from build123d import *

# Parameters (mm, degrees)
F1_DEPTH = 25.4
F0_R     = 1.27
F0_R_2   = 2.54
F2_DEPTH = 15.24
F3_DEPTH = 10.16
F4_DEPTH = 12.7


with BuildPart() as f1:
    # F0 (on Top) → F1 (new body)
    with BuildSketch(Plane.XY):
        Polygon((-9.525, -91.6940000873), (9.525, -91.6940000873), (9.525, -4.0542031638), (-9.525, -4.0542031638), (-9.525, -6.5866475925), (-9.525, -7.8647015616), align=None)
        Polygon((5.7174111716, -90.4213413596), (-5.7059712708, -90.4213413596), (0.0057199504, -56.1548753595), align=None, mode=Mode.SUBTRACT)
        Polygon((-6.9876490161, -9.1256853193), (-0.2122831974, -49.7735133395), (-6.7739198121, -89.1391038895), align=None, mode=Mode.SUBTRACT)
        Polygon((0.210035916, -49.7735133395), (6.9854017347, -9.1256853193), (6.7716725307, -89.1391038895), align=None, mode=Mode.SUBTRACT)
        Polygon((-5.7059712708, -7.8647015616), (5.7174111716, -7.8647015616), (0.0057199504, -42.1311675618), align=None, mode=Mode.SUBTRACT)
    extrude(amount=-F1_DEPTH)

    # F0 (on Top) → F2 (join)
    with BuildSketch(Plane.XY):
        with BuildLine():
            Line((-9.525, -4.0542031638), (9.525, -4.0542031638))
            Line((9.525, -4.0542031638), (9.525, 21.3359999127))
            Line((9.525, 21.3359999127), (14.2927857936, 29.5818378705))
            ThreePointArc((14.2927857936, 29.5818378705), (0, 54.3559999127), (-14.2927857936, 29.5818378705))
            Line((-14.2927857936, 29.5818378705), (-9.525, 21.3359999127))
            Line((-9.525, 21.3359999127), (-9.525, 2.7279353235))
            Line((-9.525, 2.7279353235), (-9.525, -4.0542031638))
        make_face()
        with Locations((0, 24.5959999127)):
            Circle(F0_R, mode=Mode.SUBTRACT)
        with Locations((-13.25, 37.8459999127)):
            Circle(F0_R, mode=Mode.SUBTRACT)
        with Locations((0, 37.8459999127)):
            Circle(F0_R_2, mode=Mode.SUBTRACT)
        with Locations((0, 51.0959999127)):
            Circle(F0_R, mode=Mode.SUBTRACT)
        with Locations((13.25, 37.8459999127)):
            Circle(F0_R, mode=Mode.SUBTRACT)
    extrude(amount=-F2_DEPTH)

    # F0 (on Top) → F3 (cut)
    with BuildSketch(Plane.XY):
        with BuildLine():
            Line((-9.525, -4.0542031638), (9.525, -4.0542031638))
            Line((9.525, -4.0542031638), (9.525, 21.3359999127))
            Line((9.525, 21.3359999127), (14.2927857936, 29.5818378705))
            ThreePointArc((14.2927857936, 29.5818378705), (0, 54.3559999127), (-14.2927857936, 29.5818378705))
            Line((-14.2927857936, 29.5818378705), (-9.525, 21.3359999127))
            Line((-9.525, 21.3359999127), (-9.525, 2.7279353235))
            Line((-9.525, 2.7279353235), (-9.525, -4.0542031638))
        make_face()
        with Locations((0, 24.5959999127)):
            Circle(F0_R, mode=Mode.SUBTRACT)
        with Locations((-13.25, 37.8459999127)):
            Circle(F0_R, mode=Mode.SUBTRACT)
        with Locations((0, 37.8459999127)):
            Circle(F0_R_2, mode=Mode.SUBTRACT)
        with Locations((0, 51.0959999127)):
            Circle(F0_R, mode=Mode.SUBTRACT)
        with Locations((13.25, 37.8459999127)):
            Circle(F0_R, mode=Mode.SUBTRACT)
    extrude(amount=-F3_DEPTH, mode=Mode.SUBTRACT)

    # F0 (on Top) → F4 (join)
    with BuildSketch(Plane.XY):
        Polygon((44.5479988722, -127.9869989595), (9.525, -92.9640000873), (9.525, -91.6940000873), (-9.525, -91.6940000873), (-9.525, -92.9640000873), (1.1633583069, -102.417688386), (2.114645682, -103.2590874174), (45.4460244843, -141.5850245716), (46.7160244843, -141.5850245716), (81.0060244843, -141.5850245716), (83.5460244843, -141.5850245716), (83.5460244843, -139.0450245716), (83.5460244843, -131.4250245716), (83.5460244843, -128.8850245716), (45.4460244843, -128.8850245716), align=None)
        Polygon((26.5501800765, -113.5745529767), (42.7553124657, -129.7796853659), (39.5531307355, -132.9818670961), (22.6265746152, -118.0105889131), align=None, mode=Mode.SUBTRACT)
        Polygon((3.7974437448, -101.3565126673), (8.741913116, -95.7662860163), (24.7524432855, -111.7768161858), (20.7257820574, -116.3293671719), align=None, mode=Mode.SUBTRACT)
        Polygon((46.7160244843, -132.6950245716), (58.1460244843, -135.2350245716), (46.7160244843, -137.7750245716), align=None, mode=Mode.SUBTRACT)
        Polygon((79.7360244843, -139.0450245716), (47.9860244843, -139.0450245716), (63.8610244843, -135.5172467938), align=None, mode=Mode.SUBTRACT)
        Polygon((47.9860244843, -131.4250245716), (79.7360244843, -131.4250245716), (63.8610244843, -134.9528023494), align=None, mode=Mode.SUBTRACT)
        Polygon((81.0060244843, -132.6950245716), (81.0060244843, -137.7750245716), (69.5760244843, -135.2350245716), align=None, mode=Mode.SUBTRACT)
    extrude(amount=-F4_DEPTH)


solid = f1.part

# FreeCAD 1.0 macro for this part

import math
import FreeCAD as App
import Part
import Sketcher

V = App.Vector
Q = App.Units.Quantity

doc = App.newDocument("Part")
body = doc.addObject("PartDesign::Body", "Body")

# Sketch on XY plane
sketch1 = body.newObject("Sketcher::SketchObject", "Sketch")
sketch1.AttachmentSupport = (doc.getObject("XY_Plane"), [""])
sketch1.MapMode = "FlatFace"
sketch1.addGeometry(Part.LineSegment(V(-9.525, -91.694, 0), V(9.525, -91.694, 0)), False)
sketch1.addGeometry(Part.LineSegment(V(9.525, -91.694, 0), V(9.525, -4.054203, 0)), False)
sketch1.addGeometry(Part.LineSegment(V(9.525, -4.054203, 0), V(-9.525, -4.054203, 0)), False)
sketch1.addGeometry(Part.LineSegment(V(-9.525, -4.054203, 0), V(-9.525, -91.694, 0)), False)
sketch1.addGeometry(Part.LineSegment(V(0.00572, -56.154875, 0), V(5.717411, -90.421341, 0)), False)
sketch1.addGeometry(Part.LineSegment(V(5.717411, -90.421341, 0), V(-5.705971, -90.421341, 0)), False)
sketch1.addGeometry(Part.LineSegment(V(-5.705971, -90.421341, 0), V(0.00572, -56.154875, 0)), False)
sketch1.addGeometry(Part.LineSegment(V(-6.77392, -89.139104, 0), V(-6.987649, -9.125685, 0)), False)
sketch1.addGeometry(Part.LineSegment(V(-6.987649, -9.125685, 0), V(-0.212283, -49.773513, 0)), False)
sketch1.addGeometry(Part.LineSegment(V(-0.212283, -49.773513, 0), V(-6.77392, -89.139104, 0)), False)
sketch1.addGeometry(Part.LineSegment(V(6.771673, -89.139104, 0), V(0.210036, -49.773513, 0)), False)
sketch1.addGeometry(Part.LineSegment(V(0.210036, -49.773513, 0), V(6.985402, -9.125685, 0)), False)
sketch1.addGeometry(Part.LineSegment(V(6.985402, -9.125685, 0), V(6.771673, -89.139104, 0)), False)
sketch1.addGeometry(Part.LineSegment(V(0.00572, -42.131168, 0), V(-5.705971, -7.864702, 0)), False)
sketch1.addGeometry(Part.LineSegment(V(-5.705971, -7.864702, 0), V(5.717411, -7.864702, 0)), False)
sketch1.addGeometry(Part.LineSegment(V(5.717411, -7.864702, 0), V(0.00572, -42.131168, 0)), False)
sketch1.addConstraint(Sketcher.Constraint("Coincident", 0, 2, 1, 1))
sketch1.addConstraint(Sketcher.Constraint("Coincident", 1, 2, 2, 1))
sketch1.addConstraint(Sketcher.Constraint("Coincident", 2, 2, 3, 1))
sketch1.addConstraint(Sketcher.Constraint("Coincident", 3, 2, 0, 1))
sketch1.addConstraint(Sketcher.Constraint("Coincident", 4, 2, 5, 1))
sketch1.addConstraint(Sketcher.Constraint("Coincident", 5, 2, 6, 1))
sketch1.addConstraint(Sketcher.Constraint("Coincident", 6, 2, 4, 1))
sketch1.addConstraint(Sketcher.Constraint("Coincident", 7, 2, 8, 1))
sketch1.addConstraint(Sketcher.Constraint("Coincident", 8, 2, 9, 1))
sketch1.addConstraint(Sketcher.Constraint("Coincident", 9, 2, 7, 1))
sketch1.addConstraint(Sketcher.Constraint("Coincident", 10, 2, 11, 1))
sketch1.addConstraint(Sketcher.Constraint("Coincident", 11, 2, 12, 1))
sketch1.addConstraint(Sketcher.Constraint("Coincident", 12, 2, 10, 1))
sketch1.addConstraint(Sketcher.Constraint("Coincident", 13, 2, 14, 1))
sketch1.addConstraint(Sketcher.Constraint("Coincident", 14, 2, 15, 1))
sketch1.addConstraint(Sketcher.Constraint("Coincident", 15, 2, 13, 1))
sketch1.addConstraint(Sketcher.Constraint("Horizontal", 0))
sketch1.addConstraint(Sketcher.Constraint("Vertical", 1))
sketch1.addConstraint(Sketcher.Constraint("Horizontal", 2))
sketch1.addConstraint(Sketcher.Constraint("Vertical", 3))
sketch1.addConstraint(Sketcher.Constraint("Horizontal", 5))
sketch1.addConstraint(Sketcher.Constraint("Horizontal", 14))
sketch1.addConstraint(Sketcher.Constraint("Parallel", 4, 8))
sketch1.addConstraint(Sketcher.Constraint("Parallel", 6, 9))
sketch1.addConstraint(Sketcher.Constraint("Parallel", 8, 10))
sketch1.addConstraint(Sketcher.Constraint("Parallel", 9, 11))
sketch1.addConstraint(Sketcher.Constraint("Parallel", 10, 13))
sketch1.addConstraint(Sketcher.Constraint("Parallel", 11, 15))
sketch1.addConstraint(Sketcher.Constraint("Horizontal", 8, 2, 10, 2))
sketch1.addConstraint(Sketcher.Constraint("Horizontal", 7, 2, 11, 2))
sketch1.addConstraint(Sketcher.Constraint("Horizontal", 9, 2, 12, 2))
sketch1.addConstraint(Sketcher.Constraint("Vertical", 5, 2, 13, 2))
sketch1.addConstraint(Sketcher.Constraint("Vertical", 4, 2, 14, 2))
sketch1.addConstraint(Sketcher.Constraint("Vertical", 6, 2, 15, 2))
sketch1.addConstraint(Sketcher.Constraint("DistanceX", 0, 1, 0, 2, Q("0.75 in")))
sketch1.addConstraint(Sketcher.Constraint("DistanceY", 0, 2, -1, 1, Q("3.61 in")))
sketch1.addConstraint(Sketcher.Constraint("DistanceX", -1, 1, 0, 2, Q("0.375 in")))
sketch1.addConstraint(Sketcher.Constraint("DistanceX", -1, 1, 11, 2, 6.985402))
sketch1.addConstraint(Sketcher.Constraint("DistanceY", 13, 2, -1, 1, 7.864702))
sketch1.addConstraint(Sketcher.Constraint("DistanceY", 13, 2, 2, 2, 3.810498))
sketch1.addConstraint(Sketcher.Constraint("Distance", 4, 34.73923))
sketch1.addConstraint(Sketcher.Constraint("DistanceX", 5, 2, 5, 1, 11.423382))
sketch1.addConstraint(Sketcher.Constraint("DistanceX", -1, 1, 4, 2, 5.717411))
sketch1.addConstraint(Sketcher.Constraint("DistanceY", 4, 2, -1, 1, 90.421341))
sketch1.addConstraint(Sketcher.Constraint("DistanceX", 7, 2, -1, 1, 6.987649))
sketch1.addConstraint(Sketcher.Constraint("DistanceX", 9, 2, -1, 1, 6.77392))
sketch1.addConstraint(Sketcher.Constraint("DistanceY", 6, 2, 7, 2, 47.02919))
sketch1.addConstraint(Sketcher.Constraint("DistanceX", 5, 2, 8, 2, 5.493688))
pad1 = body.newObject("PartDesign::Pad", "Pad")
pad1.Profile = sketch1
pad1.Length = Q("1 in")
pad1.Reversed = True

# Sketch on XY plane
sketch2 = body.newObject("Sketcher::SketchObject", "Sketch001")
sketch2.AttachmentSupport = (doc.getObject("XY_Plane"), [""])
sketch2.MapMode = "FlatFace"
sketch2.addGeometry(Part.LineSegment(V(-9.525, -4.054203, 0), V(9.525, -4.054203, 0)), False)
sketch2.addGeometry(Part.LineSegment(V(9.525, -4.054203, 0), V(9.525, 21.336, 0)), False)
sketch2.addGeometry(Part.LineSegment(V(9.525, 21.336, 0), V(14.292786, 29.581838, 0)), False)
sketch2.addGeometry(Part.ArcOfCircle(Part.Circle(V(0, 37.846, 0), V(0, 0, 1), 16.51), math.radians(-30.036721), math.radians(210.036721)), False)
sketch2.addGeometry(Part.LineSegment(V(-14.292786, 29.581838, 0), V(-9.525, 21.336, 0)), False)
sketch2.addGeometry(Part.LineSegment(V(-9.525, 21.336, 0), V(-9.525, -4.054203, 0)), False)
sketch2.addGeometry(Part.Circle(V(0, 24.596, 0), V(0, 0, 1), 1.27), False)
sketch2.addGeometry(Part.Circle(V(-13.25, 37.846, 0), V(0, 0, 1), 1.27), False)
sketch2.addGeometry(Part.Circle(V(0, 37.846, 0), V(0, 0, 1), 2.54), False)
sketch2.addGeometry(Part.Circle(V(13.25, 37.846, 0), V(0, 0, 1), 1.27), False)
sketch2.addGeometry(Part.Circle(V(0, 51.096, 0), V(0, 0, 1), 1.27), False)
sketch2.addConstraint(Sketcher.Constraint("Coincident", 0, 2, 1, 1))
sketch2.addConstraint(Sketcher.Constraint("Coincident", 1, 2, 2, 1))
sketch2.addConstraint(Sketcher.Constraint("Tangent", 2, 2, 3, 1))
sketch2.addConstraint(Sketcher.Constraint("Tangent", 3, 2, 4, 1))
sketch2.addConstraint(Sketcher.Constraint("Coincident", 4, 2, 5, 1))
sketch2.addConstraint(Sketcher.Constraint("Coincident", 5, 2, 0, 1))
sketch2.addConstraint(Sketcher.Constraint("Horizontal", 0))
sketch2.addConstraint(Sketcher.Constraint("Vertical", 1))
sketch2.addConstraint(Sketcher.Constraint("Vertical", 5))
sketch2.addConstraint(Sketcher.Constraint("Coincident", 8, 3, 3, 3))
sketch2.addConstraint(Sketcher.Constraint("Equal", 6, 7))
sketch2.addConstraint(Sketcher.Constraint("Equal", 7, 9))
sketch2.addConstraint(Sketcher.Constraint("Equal", 9, 10))
sketch2.addConstraint(Sketcher.Constraint("Symmetric", 7, 3, 9, 3, -2))
sketch2.addConstraint(Sketcher.Constraint("Symmetric", 2, 2, 3, 2, -2))
sketch2.addConstraint(Sketcher.Constraint("PointOnObject", 6, 3, -2))
sketch2.addConstraint(Sketcher.Constraint("PointOnObject", 10, 3, -2))
sketch2.addConstraint(Sketcher.Constraint("Horizontal", 3, 3, 7, 3))
sketch2.addConstraint(Sketcher.Constraint("Horizontal", 1, 2, 4, 2))
sketch2.addConstraint(Sketcher.Constraint("Diameter", 6, Q("0.1 in")))
sketch2.addConstraint(Sketcher.Constraint("Diameter", 8, Q("0.2 in")))
sketch2.addConstraint(Sketcher.Constraint("Radius", 3, Q("0.65 in")))
sketch2.addConstraint(Sketcher.Constraint("DistanceX", 0, 1, 0, 2, Q("0.75 in")))
sketch2.addConstraint(Sketcher.Constraint("DistanceY", -1, 1, 3, 3, Q("1.49 in")))
sketch2.addConstraint(Sketcher.Constraint("DistanceY", -1, 1, 1, 2, Q("0.84 in")))
sketch2.addConstraint(Sketcher.Constraint("DistanceY", -1, 1, 6, 3, 24.596))
sketch2.addConstraint(Sketcher.Constraint("DistanceX", 7, 3, -1, 1, 13.25))
sketch2.addConstraint(Sketcher.Constraint("DistanceY", -1, 1, 10, 3, 51.096))
sketch2.addConstraint(Sketcher.Constraint("DistanceY", 1, 1, 1, 2, 25.390203))
pad2 = body.newObject("PartDesign::Pad", "Pad001")
pad2.Profile = sketch2
pad2.Length = Q("0.6 in")
pad2.Reversed = True

# Sketch on XY plane
sketch3 = body.newObject("Sketcher::SketchObject", "Sketch002")
sketch3.AttachmentSupport = (doc.getObject("XY_Plane"), [""])
sketch3.MapMode = "FlatFace"
sketch3.addGeometry(Part.LineSegment(V(-9.525, -4.054203, 0), V(9.525, -4.054203, 0)), False)
sketch3.addGeometry(Part.LineSegment(V(9.525, -4.054203, 0), V(9.525, 21.336, 0)), False)
sketch3.addGeometry(Part.LineSegment(V(9.525, 21.336, 0), V(14.292786, 29.581838, 0)), False)
sketch3.addGeometry(Part.ArcOfCircle(Part.Circle(V(0, 37.846, 0), V(0, 0, 1), 16.51), math.radians(-30.036721), math.radians(210.036721)), False)
sketch3.addGeometry(Part.LineSegment(V(-14.292786, 29.581838, 0), V(-9.525, 21.336, 0)), False)
sketch3.addGeometry(Part.LineSegment(V(-9.525, 21.336, 0), V(-9.525, -4.054203, 0)), False)
sketch3.addGeometry(Part.Circle(V(0, 24.596, 0), V(0, 0, 1), 1.27), False)
sketch3.addGeometry(Part.Circle(V(-13.25, 37.846, 0), V(0, 0, 1), 1.27), False)
sketch3.addGeometry(Part.Circle(V(0, 37.846, 0), V(0, 0, 1), 2.54), False)
sketch3.addGeometry(Part.Circle(V(13.25, 37.846, 0), V(0, 0, 1), 1.27), False)
sketch3.addGeometry(Part.Circle(V(0, 51.096, 0), V(0, 0, 1), 1.27), False)
sketch3.addConstraint(Sketcher.Constraint("Coincident", 0, 2, 1, 1))
sketch3.addConstraint(Sketcher.Constraint("Coincident", 1, 2, 2, 1))
sketch3.addConstraint(Sketcher.Constraint("Tangent", 2, 2, 3, 1))
sketch3.addConstraint(Sketcher.Constraint("Tangent", 3, 2, 4, 1))
sketch3.addConstraint(Sketcher.Constraint("Coincident", 4, 2, 5, 1))
sketch3.addConstraint(Sketcher.Constraint("Coincident", 5, 2, 0, 1))
sketch3.addConstraint(Sketcher.Constraint("Horizontal", 0))
sketch3.addConstraint(Sketcher.Constraint("Vertical", 1))
sketch3.addConstraint(Sketcher.Constraint("Vertical", 5))
sketch3.addConstraint(Sketcher.Constraint("Coincident", 8, 3, 3, 3))
sketch3.addConstraint(Sketcher.Constraint("Equal", 6, 7))
sketch3.addConstraint(Sketcher.Constraint("Equal", 7, 9))
sketch3.addConstraint(Sketcher.Constraint("Equal", 9, 10))
sketch3.addConstraint(Sketcher.Constraint("Symmetric", 7, 3, 9, 3, -2))
sketch3.addConstraint(Sketcher.Constraint("Symmetric", 2, 2, 3, 2, -2))
sketch3.addConstraint(Sketcher.Constraint("PointOnObject", 6, 3, -2))
sketch3.addConstraint(Sketcher.Constraint("PointOnObject", 10, 3, -2))
sketch3.addConstraint(Sketcher.Constraint("Horizontal", 3, 3, 7, 3))
sketch3.addConstraint(Sketcher.Constraint("Horizontal", 1, 2, 4, 2))
sketch3.addConstraint(Sketcher.Constraint("Diameter", 6, Q("0.1 in")))
sketch3.addConstraint(Sketcher.Constraint("Diameter", 8, Q("0.2 in")))
sketch3.addConstraint(Sketcher.Constraint("Radius", 3, Q("0.65 in")))
sketch3.addConstraint(Sketcher.Constraint("DistanceX", 0, 1, 0, 2, Q("0.75 in")))
sketch3.addConstraint(Sketcher.Constraint("DistanceY", -1, 1, 3, 3, Q("1.49 in")))
sketch3.addConstraint(Sketcher.Constraint("DistanceY", -1, 1, 1, 2, Q("0.84 in")))
sketch3.addConstraint(Sketcher.Constraint("DistanceY", -1, 1, 6, 3, 24.596))
sketch3.addConstraint(Sketcher.Constraint("DistanceX", 7, 3, -1, 1, 13.25))
sketch3.addConstraint(Sketcher.Constraint("DistanceY", -1, 1, 10, 3, 51.096))
sketch3.addConstraint(Sketcher.Constraint("DistanceY", 1, 1, 1, 2, 25.390203))
pocket1 = body.newObject("PartDesign::Pocket", "Pocket")
pocket1.Profile = sketch3
pocket1.Length = Q("0.4 in")

# Sketch on XY plane
sketch4 = body.newObject("Sketcher::SketchObject", "Sketch003")
sketch4.AttachmentSupport = (doc.getObject("XY_Plane"), [""])
sketch4.MapMode = "FlatFace"
sketch4.addGeometry(Part.LineSegment(V(9.525, -92.964, 0), V(9.525, -91.694, 0)), False)
sketch4.addGeometry(Part.LineSegment(V(9.525, -91.694, 0), V(-9.525, -91.694, 0)), False)
sketch4.addGeometry(Part.LineSegment(V(-9.525, -91.694, 0), V(-9.525, -92.964, 0)), False)
sketch4.addGeometry(Part.LineSegment(V(-9.525, -92.964, 0), V(2.114646, -103.259087, 0)), False)
sketch4.addGeometry(Part.LineSegment(V(2.114646, -103.259087, 0), V(45.446024, -141.585025, 0)), False)
sketch4.addGeometry(Part.LineSegment(V(45.446024, -141.585025, 0), V(83.546024, -141.585025, 0)), False)
sketch4.addGeometry(Part.LineSegment(V(83.546024, -141.585025, 0), V(83.546024, -128.885025, 0)), False)
sketch4.addGeometry(Part.LineSegment(V(83.546024, -128.885025, 0), V(45.446024, -128.885025, 0)), False)
sketch4.addGeometry(Part.LineSegment(V(45.446024, -128.885025, 0), V(9.525, -92.964, 0)), False)
sketch4.addGeometry(Part.LineSegment(V(22.626575, -118.010589, 0), V(26.55018, -113.574553, 0)), False)
sketch4.addGeometry(Part.LineSegment(V(26.55018, -113.574553, 0), V(42.755312, -129.779685, 0)), False)
sketch4.addGeometry(Part.LineSegment(V(42.755312, -129.779685, 0), V(39.553131, -132.981867, 0)), False)
sketch4.addGeometry(Part.LineSegment(V(39.553131, -132.981867, 0), V(22.626575, -118.010589, 0)), False)
sketch4.addGeometry(Part.LineSegment(V(46.716024, -137.775025, 0), V(46.716024, -132.695025, 0)), False)
sketch4.addGeometry(Part.LineSegment(V(46.716024, -132.695025, 0), V(58.146024, -135.235025, 0)), False)
sketch4.addGeometry(Part.LineSegment(V(58.146024, -135.235025, 0), V(46.716024, -137.775025, 0)), False)
sketch4.addGeometry(Part.LineSegment(V(63.861024, -135.517247, 0), V(79.736024, -139.045025, 0)), False)
sketch4.addGeometry(Part.LineSegment(V(79.736024, -139.045025, 0), V(47.986024, -139.045025, 0)), False)
sketch4.addGeometry(Part.LineSegment(V(47.986024, -139.045025, 0), V(63.861024, -135.517247, 0)), False)
sketch4.addGeometry(Part.LineSegment(V(69.576024, -135.235025, 0), V(81.006024, -132.695025, 0)), False)
sketch4.addGeometry(Part.LineSegment(V(81.006024, -132.695025, 0), V(81.006024, -137.775025, 0)), False)
sketch4.addGeometry(Part.LineSegment(V(81.006024, -137.775025, 0), V(69.576024, -135.235025, 0)), False)
sketch4.addGeometry(Part.LineSegment(V(63.861024, -134.952802, 0), V(47.986024, -131.425025, 0)), False)
sketch4.addGeometry(Part.LineSegment(V(47.986024, -131.425025, 0), V(79.736024, -131.425025, 0)), False)
sketch4.addGeometry(Part.LineSegment(V(79.736024, -131.425025, 0), V(63.861024, -134.952802, 0)), False)
sketch4.addGeometry(Part.LineSegment(V(20.725782, -116.329367, 0), V(3.797444, -101.356513, 0)), False)
sketch4.addGeometry(Part.LineSegment(V(3.797444, -101.356513, 0), V(8.741913, -95.766286, 0)), False)
sketch4.addGeometry(Part.LineSegment(V(8.741913, -95.766286, 0), V(24.752443, -111.776816, 0)), False)
sketch4.addGeometry(Part.LineSegment(V(24.752443, -111.776816, 0), V(20.725782, -116.329367, 0)), False)
sketch4.addConstraint(Sketcher.Constraint("Coincident", 0, 2, 1, 1))
sketch4.addConstraint(Sketcher.Constraint("Coincident", 1, 2, 2, 1))
sketch4.addConstraint(Sketcher.Constraint("Coincident", 2, 2, 3, 1))
sketch4.addConstraint(Sketcher.Constraint("Coincident", 3, 2, 4, 1))
sketch4.addConstraint(Sketcher.Constraint("Coincident", 4, 2, 5, 1))
sketch4.addConstraint(Sketcher.Constraint("Coincident", 5, 2, 6, 1))
sketch4.addConstraint(Sketcher.Constraint("Coincident", 6, 2, 7, 1))
sketch4.addConstraint(Sketcher.Constraint("Coincident", 7, 2, 8, 1))
sketch4.addConstraint(Sketcher.Constraint("Coincident", 8, 2, 0, 1))
sketch4.addConstraint(Sketcher.Constraint("Coincident", 9, 2, 10, 1))
sketch4.addConstraint(Sketcher.Constraint("Coincident", 10, 2, 11, 1))
sketch4.addConstraint(Sketcher.Constraint("Coincident", 11, 2, 12, 1))
sketch4.addConstraint(Sketcher.Constraint("Coincident", 12, 2, 9, 1))
sketch4.addConstraint(Sketcher.Constraint("Coincident", 13, 2, 14, 1))
sketch4.addConstraint(Sketcher.Constraint("Coincident", 14, 2, 15, 1))
sketch4.addConstraint(Sketcher.Constraint("Coincident", 15, 2, 13, 1))
sketch4.addConstraint(Sketcher.Constraint("Coincident", 16, 2, 17, 1))
sketch4.addConstraint(Sketcher.Constraint("Coincident", 17, 2, 18, 1))
sketch4.addConstraint(Sketcher.Constraint("Coincident", 18, 2, 16, 1))
sketch4.addConstraint(Sketcher.Constraint("Coincident", 19, 2, 20, 1))
sketch4.addConstraint(Sketcher.Constraint("Coincident", 20, 2, 21, 1))
sketch4.addConstraint(Sketcher.Constraint("Coincident", 21, 2, 19, 1))
sketch4.addConstraint(Sketcher.Constraint("Coincident", 22, 2, 23, 1))
sketch4.addConstraint(Sketcher.Constraint("Coincident", 23, 2, 24, 1))
sketch4.addConstraint(Sketcher.Constraint("Coincident", 24, 2, 22, 1))
sketch4.addConstraint(Sketcher.Constraint("Coincident", 25, 2, 26, 1))
sketch4.addConstraint(Sketcher.Constraint("Coincident", 26, 2, 27, 1))
sketch4.addConstraint(Sketcher.Constraint("Coincident", 27, 2, 28, 1))
sketch4.addConstraint(Sketcher.Constraint("Coincident", 28, 2, 25, 1))
sketch4.addConstraint(Sketcher.Constraint("Vertical", 0))
sketch4.addConstraint(Sketcher.Constraint("Horizontal", 1))
sketch4.addConstraint(Sketcher.Constraint("Vertical", 2))
sketch4.addConstraint(Sketcher.Constraint("Horizontal", 5))
sketch4.addConstraint(Sketcher.Constraint("Vertical", 6))
sketch4.addConstraint(Sketcher.Constraint("Horizontal", 7))
sketch4.addConstraint(Sketcher.Constraint("Vertical", 13))
sketch4.addConstraint(Sketcher.Constraint("Horizontal", 17))
sketch4.addConstraint(Sketcher.Constraint("Vertical", 20))
sketch4.addConstraint(Sketcher.Constraint("Horizontal", 23))
sketch4.addConstraint(Sketcher.Constraint("Symmetric", 2, 2, 8, 2, -2))
sketch4.addConstraint(Sketcher.Constraint("Parallel", 3, 4))
sketch4.addConstraint(Sketcher.Constraint("Perpendicular", 4, 9))
sketch4.addConstraint(Sketcher.Constraint("Parallel", 8, 10))
sketch4.addConstraint(Sketcher.Constraint("Perpendicular", 10, 11))
sketch4.addConstraint(Sketcher.Constraint("Perpendicular", 9, 12))
sketch4.addConstraint(Sketcher.Constraint("Parallel", 14, 16))
sketch4.addConstraint(Sketcher.Constraint("Parallel", 15, 18))
sketch4.addConstraint(Sketcher.Constraint("Parallel", 18, 19))
sketch4.addConstraint(Sketcher.Constraint("Parallel", 16, 21))
sketch4.addConstraint(Sketcher.Constraint("Parallel", 21, 22))
sketch4.addConstraint(Sketcher.Constraint("Parallel", 19, 24))
sketch4.addConstraint(Sketcher.Constraint("Parallel", 12, 25))
sketch4.addConstraint(Sketcher.Constraint("Perpendicular", 25, 26))
sketch4.addConstraint(Sketcher.Constraint("Perpendicular", 11, 27))
sketch4.addConstraint(Sketcher.Constraint("Parallel", 26, 28))
sketch4.addConstraint(Sketcher.Constraint("Horizontal", 13, 2, 19, 2))
sketch4.addConstraint(Sketcher.Constraint("Horizontal", 15, 2, 20, 2))
sketch4.addConstraint(Sketcher.Constraint("Horizontal", 14, 2, 21, 2))
sketch4.addConstraint(Sketcher.Constraint("Vertical", 4, 2, 7, 2))
sketch4.addConstraint(Sketcher.Constraint("Vertical", 17, 2, 22, 2))
sketch4.addConstraint(Sketcher.Constraint("Vertical", 16, 2, 23, 2))
sketch4.addConstraint(Sketcher.Constraint("Distance", 8, Q("2 in")))
sketch4.addConstraint(Sketcher.Constraint("DistanceX", 5, 1, 5, 2, Q("1.5 in")))
sketch4.addConstraint(Sketcher.Constraint("DistanceY", 6, 1, 6, 2, Q("0.5 in")))
sketch4.addConstraint(Sketcher.Constraint("DistanceY", 13, 1, 13, 2, Q("0.2 in")))
sketch4.addConstraint(Sketcher.Constraint("Angle", 8, Q("135 deg")))
sketch4.addConstraint(Sketcher.Constraint("DistanceX", 1, 2, 1, 1, Q("0.75 in")))
sketch4.addConstraint(Sketcher.Constraint("DistanceX", 17, 2, 17, 1, Q("1.25 in")))
sketch4.addConstraint(Sketcher.Constraint("DistanceY", 0, 1, 0, 2, Q("0.05 in")))
sketch4.addConstraint(Sketcher.Constraint("DistanceX", 7, 2, 14, 2, Q("0.5 in")))
sketch4.addConstraint(Sketcher.Constraint("DistanceY", 5, 2, 16, 2, Q("0.1 in")))
sketch4.addConstraint(Sketcher.Constraint("DistanceX", 15, 2, 16, 2, Q("1.3 in")))
sketch4.addConstraint(Sketcher.Constraint("DistanceX", 4, 2, 17, 2, Q("0.1 in")))
sketch4.addConstraint(Sketcher.Constraint("DistanceX", 19, 2, 6, 2, Q("0.1 in")))
sketch4.addConstraint(Sketcher.Constraint("DistanceY", 22, 2, 7, 2, Q("0.1 in")))
sketch4.addConstraint(Sketcher.Constraint("DistanceY", 0, 2, -1, 1, Q("3.61 in")))
sketch4.addConstraint(Sketcher.Constraint("DistanceY", 13, 2, 7, 2, Q("0.15 in")))
sketch4.addConstraint(Sketcher.Constraint("DistanceX", 25, 2, 27, 2, Q("0.825 in")))
sketch4.addConstraint(Sketcher.Constraint("DistanceX", 12, 2, 11, 2, Q("0.6663998 in")))
sketch4.addConstraint(Sketcher.Constraint("DistanceY", 12, 2, 3, 2, 14.751501))
sketch4.addConstraint(Sketcher.Constraint("DistanceX", 3, 2, 25, 2, 1.682798))
sketch4.addConstraint(Sketcher.Constraint("DistanceY", 3, 2, 26, 2, 7.492801))
sketch4.addConstraint(Sketcher.Constraint("DistanceX", 28, 2, 9, 2, 5.824398))
sketch4.addConstraint(Sketcher.Constraint("Distance", 3, 15.539311))
sketch4.addConstraint(Sketcher.Constraint("Distance", 10, 22.917518))
sketch4.addConstraint(Sketcher.Constraint("Distance", 25, 22.59989))
pad3 = body.newObject("PartDesign::Pad", "Pad002")
pad3.Profile = sketch4
pad3.Length = Q("0.5 in")
pad3.Reversed = True

doc.recompute()
